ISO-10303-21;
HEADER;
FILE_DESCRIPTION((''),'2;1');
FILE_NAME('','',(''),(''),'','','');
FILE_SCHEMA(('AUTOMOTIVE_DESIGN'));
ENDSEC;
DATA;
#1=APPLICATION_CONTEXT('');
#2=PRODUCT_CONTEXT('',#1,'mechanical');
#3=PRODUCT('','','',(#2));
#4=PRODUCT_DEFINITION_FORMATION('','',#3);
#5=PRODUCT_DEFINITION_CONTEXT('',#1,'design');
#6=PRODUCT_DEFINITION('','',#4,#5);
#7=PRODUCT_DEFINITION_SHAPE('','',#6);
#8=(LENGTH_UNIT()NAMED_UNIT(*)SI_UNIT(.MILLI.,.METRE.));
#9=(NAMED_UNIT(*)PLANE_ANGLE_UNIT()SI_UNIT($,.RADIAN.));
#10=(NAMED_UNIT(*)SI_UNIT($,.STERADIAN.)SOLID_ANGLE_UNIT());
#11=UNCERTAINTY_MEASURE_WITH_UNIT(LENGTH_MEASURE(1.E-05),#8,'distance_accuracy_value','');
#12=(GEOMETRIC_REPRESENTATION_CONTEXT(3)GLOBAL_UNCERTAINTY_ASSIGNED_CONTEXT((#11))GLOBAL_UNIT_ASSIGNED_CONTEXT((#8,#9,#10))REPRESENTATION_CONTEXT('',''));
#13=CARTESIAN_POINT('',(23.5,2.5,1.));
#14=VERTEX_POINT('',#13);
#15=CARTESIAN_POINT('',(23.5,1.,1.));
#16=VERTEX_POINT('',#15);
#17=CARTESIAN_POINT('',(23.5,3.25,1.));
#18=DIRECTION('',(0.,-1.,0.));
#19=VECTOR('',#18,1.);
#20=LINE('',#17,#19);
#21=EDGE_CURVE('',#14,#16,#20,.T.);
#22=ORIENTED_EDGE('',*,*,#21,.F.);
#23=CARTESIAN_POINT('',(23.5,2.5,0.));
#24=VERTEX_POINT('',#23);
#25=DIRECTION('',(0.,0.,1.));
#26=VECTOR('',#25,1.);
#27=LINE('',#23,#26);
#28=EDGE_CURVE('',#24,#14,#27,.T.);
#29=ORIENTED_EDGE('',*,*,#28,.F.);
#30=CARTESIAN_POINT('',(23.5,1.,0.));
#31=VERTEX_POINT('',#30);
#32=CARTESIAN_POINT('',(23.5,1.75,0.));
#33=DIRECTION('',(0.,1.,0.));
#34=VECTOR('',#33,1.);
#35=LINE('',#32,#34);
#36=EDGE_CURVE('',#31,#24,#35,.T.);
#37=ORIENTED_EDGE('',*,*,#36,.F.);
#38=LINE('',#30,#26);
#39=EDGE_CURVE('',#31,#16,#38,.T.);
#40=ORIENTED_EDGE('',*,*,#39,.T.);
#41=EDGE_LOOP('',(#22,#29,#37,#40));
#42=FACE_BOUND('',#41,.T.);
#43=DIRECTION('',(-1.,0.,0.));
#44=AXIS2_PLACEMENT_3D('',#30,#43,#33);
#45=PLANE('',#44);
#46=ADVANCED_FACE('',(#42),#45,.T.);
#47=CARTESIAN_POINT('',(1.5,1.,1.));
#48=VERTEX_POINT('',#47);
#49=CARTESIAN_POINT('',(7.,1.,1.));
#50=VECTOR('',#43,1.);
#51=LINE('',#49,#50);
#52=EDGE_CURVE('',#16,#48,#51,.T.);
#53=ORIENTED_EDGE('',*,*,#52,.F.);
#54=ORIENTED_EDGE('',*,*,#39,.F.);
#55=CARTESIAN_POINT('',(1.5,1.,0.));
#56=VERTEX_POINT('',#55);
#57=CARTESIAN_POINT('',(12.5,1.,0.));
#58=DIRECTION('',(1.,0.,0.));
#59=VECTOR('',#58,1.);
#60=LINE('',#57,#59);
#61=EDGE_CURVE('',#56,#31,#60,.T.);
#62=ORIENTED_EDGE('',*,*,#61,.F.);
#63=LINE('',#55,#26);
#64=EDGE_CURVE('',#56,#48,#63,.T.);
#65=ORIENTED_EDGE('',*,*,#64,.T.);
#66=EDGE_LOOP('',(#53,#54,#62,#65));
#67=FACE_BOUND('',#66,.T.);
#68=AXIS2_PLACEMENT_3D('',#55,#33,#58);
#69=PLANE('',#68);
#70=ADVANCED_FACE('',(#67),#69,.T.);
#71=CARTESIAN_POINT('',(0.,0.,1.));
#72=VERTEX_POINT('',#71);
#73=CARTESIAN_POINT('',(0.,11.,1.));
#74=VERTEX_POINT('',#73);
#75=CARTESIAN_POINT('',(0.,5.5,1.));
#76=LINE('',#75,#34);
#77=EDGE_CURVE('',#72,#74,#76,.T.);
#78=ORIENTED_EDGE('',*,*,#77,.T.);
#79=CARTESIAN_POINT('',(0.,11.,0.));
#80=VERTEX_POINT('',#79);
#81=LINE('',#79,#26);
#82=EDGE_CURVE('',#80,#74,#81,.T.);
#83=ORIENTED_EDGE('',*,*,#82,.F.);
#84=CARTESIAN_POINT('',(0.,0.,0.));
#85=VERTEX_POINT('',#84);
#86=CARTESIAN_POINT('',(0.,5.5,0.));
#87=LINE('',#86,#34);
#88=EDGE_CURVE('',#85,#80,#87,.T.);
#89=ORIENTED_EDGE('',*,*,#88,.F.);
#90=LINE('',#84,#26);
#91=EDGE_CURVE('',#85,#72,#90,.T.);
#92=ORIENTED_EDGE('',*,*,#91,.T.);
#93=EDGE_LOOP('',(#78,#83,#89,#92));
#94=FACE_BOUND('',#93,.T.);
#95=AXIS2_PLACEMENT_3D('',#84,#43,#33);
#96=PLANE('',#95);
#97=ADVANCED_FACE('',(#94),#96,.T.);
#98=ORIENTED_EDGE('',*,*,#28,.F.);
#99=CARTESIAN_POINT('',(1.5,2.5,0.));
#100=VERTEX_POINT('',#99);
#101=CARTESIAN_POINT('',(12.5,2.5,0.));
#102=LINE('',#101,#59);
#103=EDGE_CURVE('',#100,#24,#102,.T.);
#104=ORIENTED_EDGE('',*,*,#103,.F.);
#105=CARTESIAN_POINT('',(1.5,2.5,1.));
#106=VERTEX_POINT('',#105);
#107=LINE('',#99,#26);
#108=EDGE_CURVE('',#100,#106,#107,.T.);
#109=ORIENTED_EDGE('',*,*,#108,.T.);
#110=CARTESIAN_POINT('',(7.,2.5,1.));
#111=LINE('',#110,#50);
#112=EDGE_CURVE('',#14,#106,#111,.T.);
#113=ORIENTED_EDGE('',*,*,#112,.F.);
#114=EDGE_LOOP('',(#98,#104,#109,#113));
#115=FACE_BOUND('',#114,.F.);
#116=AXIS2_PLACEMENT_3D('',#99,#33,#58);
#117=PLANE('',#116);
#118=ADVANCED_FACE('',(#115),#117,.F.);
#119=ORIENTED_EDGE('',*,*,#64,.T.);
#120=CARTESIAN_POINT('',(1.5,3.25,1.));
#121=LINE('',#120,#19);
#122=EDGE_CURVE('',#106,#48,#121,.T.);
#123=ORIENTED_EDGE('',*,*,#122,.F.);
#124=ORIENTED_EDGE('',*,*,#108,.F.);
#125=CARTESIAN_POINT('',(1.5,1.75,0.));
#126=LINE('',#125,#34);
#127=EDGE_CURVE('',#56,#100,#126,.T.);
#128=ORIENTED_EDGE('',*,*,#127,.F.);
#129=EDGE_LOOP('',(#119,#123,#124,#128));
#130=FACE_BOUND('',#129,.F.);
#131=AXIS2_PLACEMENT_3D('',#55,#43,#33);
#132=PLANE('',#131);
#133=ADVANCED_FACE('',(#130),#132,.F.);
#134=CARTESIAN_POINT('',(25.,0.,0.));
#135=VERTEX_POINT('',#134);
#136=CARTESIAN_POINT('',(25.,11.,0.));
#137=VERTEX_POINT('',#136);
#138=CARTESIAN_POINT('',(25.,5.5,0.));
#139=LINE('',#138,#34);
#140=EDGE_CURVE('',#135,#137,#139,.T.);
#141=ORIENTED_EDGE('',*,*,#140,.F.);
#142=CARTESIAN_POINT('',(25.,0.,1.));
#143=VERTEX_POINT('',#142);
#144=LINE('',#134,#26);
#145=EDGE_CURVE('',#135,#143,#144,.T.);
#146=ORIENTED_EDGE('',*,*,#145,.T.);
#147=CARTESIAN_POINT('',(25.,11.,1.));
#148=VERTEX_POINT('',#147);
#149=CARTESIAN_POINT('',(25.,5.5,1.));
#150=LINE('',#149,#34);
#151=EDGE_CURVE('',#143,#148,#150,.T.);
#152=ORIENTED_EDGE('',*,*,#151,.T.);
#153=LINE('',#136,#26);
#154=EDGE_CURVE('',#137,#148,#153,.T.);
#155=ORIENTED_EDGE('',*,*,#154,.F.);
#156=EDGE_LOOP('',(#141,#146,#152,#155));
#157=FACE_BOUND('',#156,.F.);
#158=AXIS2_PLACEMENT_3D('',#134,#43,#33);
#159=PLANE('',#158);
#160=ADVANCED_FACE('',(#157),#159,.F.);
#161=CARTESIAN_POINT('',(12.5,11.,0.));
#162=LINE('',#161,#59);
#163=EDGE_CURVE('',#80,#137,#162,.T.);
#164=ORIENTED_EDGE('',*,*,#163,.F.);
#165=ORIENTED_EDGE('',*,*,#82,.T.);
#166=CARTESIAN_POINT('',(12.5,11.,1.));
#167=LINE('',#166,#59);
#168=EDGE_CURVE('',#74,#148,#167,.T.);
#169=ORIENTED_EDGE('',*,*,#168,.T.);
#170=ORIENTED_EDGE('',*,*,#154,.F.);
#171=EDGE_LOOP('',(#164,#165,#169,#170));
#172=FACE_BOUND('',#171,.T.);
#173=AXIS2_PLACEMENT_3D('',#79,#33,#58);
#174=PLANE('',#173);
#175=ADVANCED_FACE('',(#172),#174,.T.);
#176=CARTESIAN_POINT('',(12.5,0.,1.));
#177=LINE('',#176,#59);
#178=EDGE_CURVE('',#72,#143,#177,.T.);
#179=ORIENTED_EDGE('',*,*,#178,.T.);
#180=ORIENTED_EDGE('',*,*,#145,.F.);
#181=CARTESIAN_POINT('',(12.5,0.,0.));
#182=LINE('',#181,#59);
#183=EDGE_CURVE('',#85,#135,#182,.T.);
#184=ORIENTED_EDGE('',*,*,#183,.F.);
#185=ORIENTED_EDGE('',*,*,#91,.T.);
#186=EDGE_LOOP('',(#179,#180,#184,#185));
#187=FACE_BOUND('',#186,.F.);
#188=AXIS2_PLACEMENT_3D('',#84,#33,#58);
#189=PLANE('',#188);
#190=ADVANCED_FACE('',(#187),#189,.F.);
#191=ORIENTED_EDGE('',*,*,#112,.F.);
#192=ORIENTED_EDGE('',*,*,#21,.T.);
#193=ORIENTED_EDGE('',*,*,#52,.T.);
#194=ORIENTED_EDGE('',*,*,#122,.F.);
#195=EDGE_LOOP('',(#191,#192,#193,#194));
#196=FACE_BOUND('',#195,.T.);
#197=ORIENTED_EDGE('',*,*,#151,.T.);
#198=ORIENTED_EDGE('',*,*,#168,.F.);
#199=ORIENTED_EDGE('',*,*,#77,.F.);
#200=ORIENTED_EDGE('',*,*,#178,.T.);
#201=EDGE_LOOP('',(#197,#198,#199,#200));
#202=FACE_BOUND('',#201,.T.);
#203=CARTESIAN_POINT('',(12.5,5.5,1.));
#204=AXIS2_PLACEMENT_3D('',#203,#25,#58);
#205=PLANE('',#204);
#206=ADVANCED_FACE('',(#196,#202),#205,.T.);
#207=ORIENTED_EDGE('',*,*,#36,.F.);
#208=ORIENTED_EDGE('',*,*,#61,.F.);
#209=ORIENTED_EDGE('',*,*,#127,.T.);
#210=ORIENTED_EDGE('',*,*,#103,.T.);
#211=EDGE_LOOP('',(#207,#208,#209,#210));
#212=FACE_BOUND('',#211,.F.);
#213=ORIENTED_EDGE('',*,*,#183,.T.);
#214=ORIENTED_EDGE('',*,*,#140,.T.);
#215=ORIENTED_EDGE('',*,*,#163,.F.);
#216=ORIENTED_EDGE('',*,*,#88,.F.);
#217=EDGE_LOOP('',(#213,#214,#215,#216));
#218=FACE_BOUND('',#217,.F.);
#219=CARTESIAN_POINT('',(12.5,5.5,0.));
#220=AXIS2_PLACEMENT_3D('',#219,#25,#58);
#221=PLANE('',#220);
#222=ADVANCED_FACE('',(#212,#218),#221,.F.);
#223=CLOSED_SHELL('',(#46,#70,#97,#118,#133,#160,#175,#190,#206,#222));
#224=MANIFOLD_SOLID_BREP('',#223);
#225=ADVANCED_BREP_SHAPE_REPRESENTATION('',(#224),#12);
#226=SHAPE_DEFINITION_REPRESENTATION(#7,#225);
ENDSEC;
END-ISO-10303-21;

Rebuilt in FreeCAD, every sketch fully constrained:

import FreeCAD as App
import Part
import Sketcher

V = App.Vector
Q = App.Units.Quantity


def add_polygon(sketch, points):
    """Adds a closed chain of lines whose ends are joined by coincident constraints."""
    first, n = sketch.GeometryCount, len(points)
    for a, b in zip(points, points[1:] + points[:1]):
        sketch.addGeometry(Part.LineSegment(App.Vector(*a, 0), App.Vector(*b, 0)), False)
    for i in range(n):
        sketch.addConstraint(Sketcher.Constraint("Coincident", first + i, 2, first + (i + 1) % n, 1))

doc = App.newDocument("Part")
body = doc.addObject("PartDesign::Body", "Body")

# Sketch on XY plane
sketch1 = body.newObject("Sketcher::SketchObject", "Sketch")
sketch1.AttachmentSupport = (doc.getObject("XY_Plane"), [""])
sketch1.MapMode = "FlatFace"
add_polygon(sketch1, [(1.5, 2.5), (1.5, 1), (23.5, 1), (23.5, 2.5)])  # lines 0-3
sketch1.addConstraint(Sketcher.Constraint("Vertical", 0))
sketch1.addConstraint(Sketcher.Constraint("Horizontal", 1))
sketch1.addConstraint(Sketcher.Constraint("Vertical", 2))
sketch1.addConstraint(Sketcher.Constraint("Horizontal", 3))
sketch1.addConstraint(Sketcher.Constraint("DistanceX", 1, 1, 1, 2, Q("22 mm")))
sketch1.addConstraint(Sketcher.Constraint("DistanceY", 0, 2, 0, 1, Q("1.5 mm")))
sketch1.addConstraint(Sketcher.Constraint("DistanceY", -1, 1, 0, 2, Q("1 mm")))
sketch1.addConstraint(Sketcher.Constraint("DistanceX", -1, 1, 0, 2, Q("1.5 mm")))
pad1 = body.newObject("PartDesign::Pad", "Pad")
pad1.Profile = sketch1
pad1.Length = 2
body2 = doc.addObject("PartDesign::Body", "Body001")

# Sketch on XY plane
sketch2 = body2.newObject("Sketcher::SketchObject", "Sketch001")
sketch2.AttachmentSupport = (doc.getObject("XY_Plane001"), [""])
sketch2.MapMode = "FlatFace"
add_polygon(sketch2, [(0, 11), (0, 0), (25, 0), (25, 11)])  # lines 0-3
sketch2.addConstraint(Sketcher.Constraint("Vertical", 0))
sketch2.addConstraint(Sketcher.Constraint("Horizontal", 1))
sketch2.addConstraint(Sketcher.Constraint("Vertical", 2))
sketch2.addConstraint(Sketcher.Constraint("Horizontal", 3))
sketch2.addConstraint(Sketcher.Constraint("Coincident", 0, 2, -1, 1))
sketch2.addConstraint(Sketcher.Constraint("DistanceX", 1, 1, 1, 2, Q("25 mm")))
sketch2.addConstraint(Sketcher.Constraint("DistanceY", 0, 2, 0, 1, Q("11 mm")))
pad2 = body2.newObject("PartDesign::Pad", "Pad001")
pad2.Profile = sketch2
pad2.Length = 1
doc.recompute()

boolean = body2.newObject("PartDesign::Boolean", "Boolean")
boolean.Type = "Cut"
boolean.addObjects([body])

doc.recompute()
